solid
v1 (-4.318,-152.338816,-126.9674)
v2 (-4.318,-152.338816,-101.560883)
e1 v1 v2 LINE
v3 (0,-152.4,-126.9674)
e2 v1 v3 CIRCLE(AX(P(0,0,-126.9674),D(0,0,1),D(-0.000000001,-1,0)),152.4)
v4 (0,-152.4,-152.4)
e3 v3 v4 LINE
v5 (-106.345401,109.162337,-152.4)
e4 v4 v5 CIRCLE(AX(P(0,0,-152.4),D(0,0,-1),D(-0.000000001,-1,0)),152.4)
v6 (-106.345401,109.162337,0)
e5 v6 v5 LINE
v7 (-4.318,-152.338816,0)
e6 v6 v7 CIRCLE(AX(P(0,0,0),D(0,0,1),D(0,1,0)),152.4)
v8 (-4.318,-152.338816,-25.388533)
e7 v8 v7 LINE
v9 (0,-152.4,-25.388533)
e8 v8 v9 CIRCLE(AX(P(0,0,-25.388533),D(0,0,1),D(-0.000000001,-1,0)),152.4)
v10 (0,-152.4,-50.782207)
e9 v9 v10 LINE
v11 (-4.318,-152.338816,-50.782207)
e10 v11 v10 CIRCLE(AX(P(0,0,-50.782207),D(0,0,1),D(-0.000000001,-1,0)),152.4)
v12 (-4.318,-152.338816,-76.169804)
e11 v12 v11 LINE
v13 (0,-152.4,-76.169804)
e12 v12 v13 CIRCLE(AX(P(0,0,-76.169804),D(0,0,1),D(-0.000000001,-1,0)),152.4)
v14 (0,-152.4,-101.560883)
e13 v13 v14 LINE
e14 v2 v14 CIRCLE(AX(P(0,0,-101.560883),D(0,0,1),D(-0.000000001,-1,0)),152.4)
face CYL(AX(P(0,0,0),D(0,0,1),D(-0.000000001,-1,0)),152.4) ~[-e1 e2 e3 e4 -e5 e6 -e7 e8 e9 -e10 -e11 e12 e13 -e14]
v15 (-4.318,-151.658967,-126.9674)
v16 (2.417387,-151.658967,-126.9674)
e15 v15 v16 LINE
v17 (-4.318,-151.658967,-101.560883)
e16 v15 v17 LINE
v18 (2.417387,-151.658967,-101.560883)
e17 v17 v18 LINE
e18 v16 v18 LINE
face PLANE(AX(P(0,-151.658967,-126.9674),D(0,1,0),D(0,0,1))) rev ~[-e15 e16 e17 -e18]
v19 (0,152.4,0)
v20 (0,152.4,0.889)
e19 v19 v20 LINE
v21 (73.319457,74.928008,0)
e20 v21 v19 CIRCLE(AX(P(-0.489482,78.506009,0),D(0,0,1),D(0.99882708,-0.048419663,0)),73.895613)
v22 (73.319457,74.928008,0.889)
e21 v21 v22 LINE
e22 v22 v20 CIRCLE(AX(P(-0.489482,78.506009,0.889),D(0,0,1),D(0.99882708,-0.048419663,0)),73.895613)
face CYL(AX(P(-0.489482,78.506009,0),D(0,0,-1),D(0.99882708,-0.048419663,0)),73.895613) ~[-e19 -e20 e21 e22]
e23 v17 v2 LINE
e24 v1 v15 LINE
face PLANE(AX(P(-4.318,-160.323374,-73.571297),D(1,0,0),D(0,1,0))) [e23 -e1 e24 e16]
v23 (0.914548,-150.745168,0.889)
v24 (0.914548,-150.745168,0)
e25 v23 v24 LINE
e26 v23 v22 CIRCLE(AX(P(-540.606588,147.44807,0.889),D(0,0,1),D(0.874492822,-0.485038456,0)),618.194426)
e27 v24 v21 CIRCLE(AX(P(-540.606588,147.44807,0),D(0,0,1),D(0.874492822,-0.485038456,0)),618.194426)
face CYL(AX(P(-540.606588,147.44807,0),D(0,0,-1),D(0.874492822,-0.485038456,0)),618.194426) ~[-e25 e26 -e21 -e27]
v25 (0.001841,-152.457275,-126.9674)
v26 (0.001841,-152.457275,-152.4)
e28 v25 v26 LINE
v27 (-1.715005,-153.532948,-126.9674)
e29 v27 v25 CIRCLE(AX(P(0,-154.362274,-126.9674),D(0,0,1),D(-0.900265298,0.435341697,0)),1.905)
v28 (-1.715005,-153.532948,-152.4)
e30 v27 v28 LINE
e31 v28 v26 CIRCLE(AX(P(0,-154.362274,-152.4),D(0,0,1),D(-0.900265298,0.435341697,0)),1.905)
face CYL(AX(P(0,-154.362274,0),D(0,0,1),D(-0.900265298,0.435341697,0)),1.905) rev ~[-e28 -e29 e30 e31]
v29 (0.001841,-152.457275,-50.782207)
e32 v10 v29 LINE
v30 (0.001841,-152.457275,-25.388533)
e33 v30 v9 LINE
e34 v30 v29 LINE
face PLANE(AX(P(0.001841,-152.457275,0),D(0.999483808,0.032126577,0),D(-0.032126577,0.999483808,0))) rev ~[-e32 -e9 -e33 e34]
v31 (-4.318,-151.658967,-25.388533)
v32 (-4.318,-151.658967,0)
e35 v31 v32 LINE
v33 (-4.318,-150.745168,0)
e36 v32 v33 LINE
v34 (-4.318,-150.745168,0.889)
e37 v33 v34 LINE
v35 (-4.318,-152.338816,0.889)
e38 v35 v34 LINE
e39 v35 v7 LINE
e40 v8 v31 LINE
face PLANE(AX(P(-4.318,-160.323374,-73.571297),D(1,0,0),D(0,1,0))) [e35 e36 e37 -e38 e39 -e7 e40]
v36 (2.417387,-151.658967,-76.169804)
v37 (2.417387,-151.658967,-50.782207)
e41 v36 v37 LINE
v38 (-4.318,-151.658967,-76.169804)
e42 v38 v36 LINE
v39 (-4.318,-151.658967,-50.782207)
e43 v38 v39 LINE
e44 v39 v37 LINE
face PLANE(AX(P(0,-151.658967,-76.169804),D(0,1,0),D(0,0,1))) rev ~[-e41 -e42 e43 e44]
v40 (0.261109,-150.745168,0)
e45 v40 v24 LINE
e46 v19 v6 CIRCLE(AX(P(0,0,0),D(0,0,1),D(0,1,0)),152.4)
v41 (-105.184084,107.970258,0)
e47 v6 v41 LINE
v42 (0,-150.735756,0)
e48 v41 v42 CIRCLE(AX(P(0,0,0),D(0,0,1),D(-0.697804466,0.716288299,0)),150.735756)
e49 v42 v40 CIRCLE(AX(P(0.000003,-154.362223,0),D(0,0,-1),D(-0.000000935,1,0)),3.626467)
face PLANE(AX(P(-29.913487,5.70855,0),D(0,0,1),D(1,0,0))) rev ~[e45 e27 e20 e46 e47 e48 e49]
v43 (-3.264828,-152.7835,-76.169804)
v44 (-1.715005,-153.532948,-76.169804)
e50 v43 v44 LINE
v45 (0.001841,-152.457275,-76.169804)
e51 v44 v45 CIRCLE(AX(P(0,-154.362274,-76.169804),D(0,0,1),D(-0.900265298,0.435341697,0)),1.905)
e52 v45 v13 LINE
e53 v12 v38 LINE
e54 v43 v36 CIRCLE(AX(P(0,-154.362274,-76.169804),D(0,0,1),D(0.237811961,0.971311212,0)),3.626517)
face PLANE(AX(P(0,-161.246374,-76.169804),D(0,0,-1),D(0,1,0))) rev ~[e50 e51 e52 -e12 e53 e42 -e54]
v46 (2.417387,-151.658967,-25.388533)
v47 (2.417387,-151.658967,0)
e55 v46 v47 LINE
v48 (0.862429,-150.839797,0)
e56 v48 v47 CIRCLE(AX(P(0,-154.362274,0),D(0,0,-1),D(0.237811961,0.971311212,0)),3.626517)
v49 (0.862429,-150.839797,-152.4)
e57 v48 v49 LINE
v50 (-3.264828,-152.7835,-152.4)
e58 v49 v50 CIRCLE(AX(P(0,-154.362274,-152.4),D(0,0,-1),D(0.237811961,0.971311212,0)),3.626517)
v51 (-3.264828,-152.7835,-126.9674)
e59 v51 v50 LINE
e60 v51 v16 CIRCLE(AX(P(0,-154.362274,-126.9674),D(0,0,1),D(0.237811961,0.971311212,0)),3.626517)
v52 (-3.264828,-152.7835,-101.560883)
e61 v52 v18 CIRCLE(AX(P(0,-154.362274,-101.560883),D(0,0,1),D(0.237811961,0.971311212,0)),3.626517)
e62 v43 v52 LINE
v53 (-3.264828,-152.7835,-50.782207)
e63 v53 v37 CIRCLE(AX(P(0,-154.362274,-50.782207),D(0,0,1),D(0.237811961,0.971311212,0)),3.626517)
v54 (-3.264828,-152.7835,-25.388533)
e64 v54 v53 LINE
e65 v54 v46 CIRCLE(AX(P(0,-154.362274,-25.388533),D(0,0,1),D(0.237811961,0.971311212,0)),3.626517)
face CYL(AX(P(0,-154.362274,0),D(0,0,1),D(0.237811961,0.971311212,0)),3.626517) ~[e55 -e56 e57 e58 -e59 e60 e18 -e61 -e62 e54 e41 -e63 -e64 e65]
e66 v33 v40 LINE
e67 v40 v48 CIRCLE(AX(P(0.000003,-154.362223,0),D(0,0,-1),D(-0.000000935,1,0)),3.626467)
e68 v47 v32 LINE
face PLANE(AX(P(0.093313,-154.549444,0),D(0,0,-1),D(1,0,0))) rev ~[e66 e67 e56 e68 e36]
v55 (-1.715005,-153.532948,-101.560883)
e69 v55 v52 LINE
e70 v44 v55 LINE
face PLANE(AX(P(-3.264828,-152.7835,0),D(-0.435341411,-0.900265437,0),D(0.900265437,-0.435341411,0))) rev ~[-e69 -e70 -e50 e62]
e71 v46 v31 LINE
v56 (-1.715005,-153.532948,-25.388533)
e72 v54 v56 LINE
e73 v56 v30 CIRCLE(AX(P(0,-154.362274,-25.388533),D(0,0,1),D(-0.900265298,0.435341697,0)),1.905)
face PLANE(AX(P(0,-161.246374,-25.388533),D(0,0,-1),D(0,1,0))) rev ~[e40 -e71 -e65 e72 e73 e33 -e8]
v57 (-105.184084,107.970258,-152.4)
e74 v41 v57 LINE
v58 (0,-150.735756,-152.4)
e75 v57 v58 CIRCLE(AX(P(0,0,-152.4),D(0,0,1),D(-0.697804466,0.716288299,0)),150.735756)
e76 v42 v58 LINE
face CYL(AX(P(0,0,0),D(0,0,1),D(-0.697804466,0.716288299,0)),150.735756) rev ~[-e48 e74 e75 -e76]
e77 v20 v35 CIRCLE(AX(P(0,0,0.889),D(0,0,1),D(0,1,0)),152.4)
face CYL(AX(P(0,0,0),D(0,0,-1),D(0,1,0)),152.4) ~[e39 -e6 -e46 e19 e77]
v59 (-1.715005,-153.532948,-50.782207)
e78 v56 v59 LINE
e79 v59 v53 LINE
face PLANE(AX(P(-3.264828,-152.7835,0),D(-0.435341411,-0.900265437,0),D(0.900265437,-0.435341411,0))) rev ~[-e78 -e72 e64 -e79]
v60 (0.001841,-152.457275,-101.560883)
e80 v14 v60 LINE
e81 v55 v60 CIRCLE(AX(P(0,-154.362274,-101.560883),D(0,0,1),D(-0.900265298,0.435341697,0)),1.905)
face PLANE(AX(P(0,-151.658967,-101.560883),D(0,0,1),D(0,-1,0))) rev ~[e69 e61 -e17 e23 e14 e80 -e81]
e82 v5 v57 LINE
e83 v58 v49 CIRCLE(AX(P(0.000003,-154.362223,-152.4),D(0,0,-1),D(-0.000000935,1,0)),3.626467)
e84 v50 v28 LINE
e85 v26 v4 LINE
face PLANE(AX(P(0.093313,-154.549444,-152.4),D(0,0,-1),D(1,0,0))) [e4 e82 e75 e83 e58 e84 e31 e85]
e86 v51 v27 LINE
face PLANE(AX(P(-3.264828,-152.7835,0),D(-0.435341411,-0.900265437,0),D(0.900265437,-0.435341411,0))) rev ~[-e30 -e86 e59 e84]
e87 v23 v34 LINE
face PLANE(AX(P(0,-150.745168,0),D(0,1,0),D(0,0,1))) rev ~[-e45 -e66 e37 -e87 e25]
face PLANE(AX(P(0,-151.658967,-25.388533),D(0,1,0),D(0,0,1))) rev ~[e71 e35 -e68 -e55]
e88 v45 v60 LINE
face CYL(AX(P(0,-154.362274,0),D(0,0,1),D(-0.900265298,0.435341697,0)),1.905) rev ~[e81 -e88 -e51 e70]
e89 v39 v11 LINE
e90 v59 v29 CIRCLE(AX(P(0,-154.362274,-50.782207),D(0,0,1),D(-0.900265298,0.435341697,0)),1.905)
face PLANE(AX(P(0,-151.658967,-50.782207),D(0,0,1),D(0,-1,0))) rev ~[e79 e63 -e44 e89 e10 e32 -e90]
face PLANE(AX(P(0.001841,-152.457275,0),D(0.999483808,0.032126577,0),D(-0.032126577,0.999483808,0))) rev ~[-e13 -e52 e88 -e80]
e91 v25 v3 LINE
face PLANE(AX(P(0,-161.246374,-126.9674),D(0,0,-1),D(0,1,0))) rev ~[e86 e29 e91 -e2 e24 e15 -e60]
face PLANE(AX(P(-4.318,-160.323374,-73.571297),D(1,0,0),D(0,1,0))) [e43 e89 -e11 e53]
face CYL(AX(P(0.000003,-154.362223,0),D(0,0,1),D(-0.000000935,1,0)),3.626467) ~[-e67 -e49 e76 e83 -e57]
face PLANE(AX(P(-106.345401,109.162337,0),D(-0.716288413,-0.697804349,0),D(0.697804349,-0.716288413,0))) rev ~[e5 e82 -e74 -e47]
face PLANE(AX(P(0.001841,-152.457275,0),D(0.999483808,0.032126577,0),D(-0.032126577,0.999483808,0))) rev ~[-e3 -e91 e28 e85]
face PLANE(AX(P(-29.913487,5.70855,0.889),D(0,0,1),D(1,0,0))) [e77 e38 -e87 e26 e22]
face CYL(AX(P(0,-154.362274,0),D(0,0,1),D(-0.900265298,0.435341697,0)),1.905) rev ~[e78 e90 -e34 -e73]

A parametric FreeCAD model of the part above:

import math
import FreeCAD as App
import Part
import Sketcher
from FreeCAD import Vector
Q = App.Units.Quantity

doc = App.newDocument("Part")
body = doc.addObject("PartDesign::Body", "Body")

sketch1 = body.newObject("Sketcher::SketchObject", "Sketch")
sketch1.AttachmentSupport = (doc.getObject("XY_Plane"), [""])
sketch1.MapMode = "FlatFace"
sketch1.addGeometry([
    Part.ArcOfCircle(Part.Circle(Vector(0, 79, 0), Vector(0, 0, 1), 74), math.radians(-3), math.radians(90)),
    Part.ArcOfCircle(Part.Circle(Vector(0, 0, 0), Vector(0, 0, 1), 152), math.radians(90), math.radians(270)),
    Part.ArcOfCircle(Part.Circle(Vector(-541, 147, 0), Vector(0, 0, 1), 618), math.radians(-29), math.radians(-7)),
], False)
sketch1.addConstraint([
    Sketcher.Constraint("Coincident", 0, 2, 1, 1),
    Sketcher.Constraint("Coincident", 1, 2, 2, 1),
    Sketcher.Constraint("Coincident", 2, 2, 0, 1),
    Sketcher.Constraint("Coincident", 1, 3, -1, 1),
    Sketcher.Constraint("PointOnObject", 0, 2, -2),
    Sketcher.Constraint("PointOnObject", 1, 2, -2),
    Sketcher.Constraint("Radius", 1, Q("6 in")),
    Sketcher.Constraint("Radius", 0, Q("73.895613 mm")),
    Sketcher.Constraint("Radius", 2, Q("618.194426 mm")),
    Sketcher.Constraint("DistanceY", 2, 2, 0, 3, Q("3.578001 mm")),
    Sketcher.Constraint("DistanceX", 0, 3, -1, 1, Q("0.489482 mm")),
])
pad1 = body.newObject("PartDesign::Pad", "Pad")
pad1.Profile = sketch1
pad1.Length = Q("0.035 in")

sketch2 = body.newObject("Sketcher::SketchObject", "Sketch001")
sketch2.AttachmentSupport = (doc.getObject("XY_Plane"), [""])
sketch2.MapMode = "FlatFace"
sketch2.addGeometry([
    Part.LineSegment(Vector(0, -152.46, 0), Vector(0, -152.4, 0)),
    Part.ArcOfCircle(Part.Circle(Vector(0, 0, 0), Vector(0, 0, 1), 152.4), math.radians(134), math.radians(270)),
    Part.LineSegment(Vector(-106.35, 109.16, 0), Vector(-105.18, 107.97, 0)),
    Part.ArcOfCircle(Part.Circle(Vector(0, 0, 0), Vector(0, 0, 1), 150.74), math.radians(134), math.radians(270)),
    Part.ArcOfCircle(Part.Circle(Vector(0, -154.36, 0), Vector(0, 0, 1), 3.63), math.radians(76.24), math.radians(90)),
    Part.ArcOfCircle(Part.Circle(Vector(0, -154.36, 0), Vector(0, 0, 1), 3.63), math.radians(154), math.radians(436)),
    Part.LineSegment(Vector(-3.26, -152.78, 0), Vector(-1.72, -153.53, 0)),
    Part.ArcOfCircle(Part.Circle(Vector(0, -154.36, 0), Vector(0, 0, 1), 1.9), math.radians(154), math.radians(450)),
], False)
sketch2.addConstraint([
    Sketcher.Constraint("Coincident", 0, 2, 1, 2),
    Sketcher.Constraint("Coincident", 1, 1, 2, 1),
    Sketcher.Constraint("Coincident", 2, 2, 3, 1),
    Sketcher.Constraint("Tangent", 3, 2, 4, 2),
    Sketcher.Constraint("Coincident", 4, 1, 5, 2),
    Sketcher.Constraint("Coincident", 5, 1, 6, 1),
    Sketcher.Constraint("Coincident", 6, 2, 7, 1),
    Sketcher.Constraint("Coincident", 7, 2, 0, 1),
    Sketcher.Constraint("Coincident", 1, 3, -1, 1),
    Sketcher.Constraint("Coincident", 3, 3, -1, 1),
    Sketcher.Constraint("Coincident", 7, 3, 5, 3),
    Sketcher.Constraint("PointOnObject", 5, 3, -2),
    Sketcher.Constraint("PointOnObject", 0, 2, -2),
    Sketcher.Constraint("PointOnObject", 3, 2, -2),
    Sketcher.Constraint("Radius", 1, Q("6 in")),
    Sketcher.Constraint("Radius", 7, Q("0.075 in")),
    Sketcher.Constraint("Radius", 3, Q("150.735756 mm")),
    Sketcher.Constraint("Radius", 4, Q("3.626467 mm")),
    Sketcher.Constraint("Radius", 5, Q("3.626517 mm")),
    Sketcher.Constraint("DistanceX", 1, 1, -1, 1, Q("106.345401 mm")),
    Sketcher.Constraint("DistanceY", 5, 1, -1, 1, Q("152.7835 mm")),
    Sketcher.Constraint("DistanceY", -1, 1, 2, 2, Q("107.970258 mm")),
    Sketcher.Constraint("DistanceX", -1, 1, 4, 1, Q("0.862429 mm")),
    Sketcher.Constraint("DistanceY", 6, 2, -1, 1, Q("153.532948 mm")),
    Sketcher.Constraint("DistanceX", -1, 1, 7, 2, Q("0.001841 mm")),
])
pad2 = body.newObject("PartDesign::Pad", "Pad001")
pad2.Profile = sketch2
pad2.Length = Q("6 in")
pad2.Reversed = True

sketch3 = body.newObject("Sketcher::SketchObject", "Sketch002")
sketch3.AttachmentSupport = (doc.getObject("YZ_Plane"), [""])
sketch3.MapMode = "FlatFace"
sketch3.addGeometry([
    Part.LineSegment(Vector(-151.7, 0, 0), Vector(-150.7, 0, 0)),
    Part.LineSegment(Vector(-150.7, 0, 0), Vector(-150.7, 1.2, 0)),
    Part.LineSegment(Vector(-150.7, 1.2, 0), Vector(-161.2, 1.2, 0)),
    Part.LineSegment(Vector(-161.2, 1.2, 0), Vector(-161.2, 0, 0)),
    Part.LineSegment(Vector(-161.2, 0, 0), Vector(-165.6, 0, 0)),
    Part.LineSegment(Vector(-165.6, 0, 0), Vector(-165.6, -152.9, 0)),
    Part.LineSegment(Vector(-165.6, -152.9, 0), Vector(-161.2, -152.9, 0)),
    Part.LineSegment(Vector(-161.2, -152.9, 0), Vector(-161.2, -127, 0)),
    Part.LineSegment(Vector(-161.2, -127, 0), Vector(-151.7, -127, 0)),
    Part.LineSegment(Vector(-151.7, -127, 0), Vector(-151.7, -101.6, 0)),
    Part.LineSegment(Vector(-151.7, -101.6, 0), Vector(-161.2, -101.6, 0)),
    Part.LineSegment(Vector(-161.2, -101.6, 0), Vector(-161.2, -76.2, 0)),
    Part.LineSegment(Vector(-161.2, -76.2, 0), Vector(-151.7, -76.2, 0)),
    Part.LineSegment(Vector(-151.7, -76.2, 0), Vector(-151.7, -50.8, 0)),
    Part.LineSegment(Vector(-151.7, -50.8, 0), Vector(-161.2, -50.8, 0)),
    Part.LineSegment(Vector(-161.2, -50.8, 0), Vector(-161.2, -25.4, 0)),
    Part.LineSegment(Vector(-161.2, -25.4, 0), Vector(-151.7, -25.4, 0)),
    Part.LineSegment(Vector(-151.7, -25.4, 0), Vector(-151.7, 0, 0)),
], False)
sketch3.addConstraint([
    Sketcher.Constraint("Coincident", 0, 2, 1, 1),
    Sketcher.Constraint("Coincident", 1, 2, 2, 1),
    Sketcher.Constraint("Coincident", 2, 2, 3, 1),
    Sketcher.Constraint("Coincident", 3, 2, 4, 1),
    Sketcher.Constraint("Coincident", 4, 2, 5, 1),
    Sketcher.Constraint("Coincident", 5, 2, 6, 1),
    Sketcher.Constraint("Coincident", 6, 2, 7, 1),
    Sketcher.Constraint("Coincident", 7, 2, 8, 1),
    Sketcher.Constraint("Coincident", 8, 2, 9, 1),
    Sketcher.Constraint("Coincident", 9, 2, 10, 1),
    Sketcher.Constraint("Coincident", 10, 2, 11, 1),
    Sketcher.Constraint("Coincident", 11, 2, 12, 1),
    Sketcher.Constraint("Coincident", 12, 2, 13, 1),
    Sketcher.Constraint("Coincident", 13, 2, 14, 1),
    Sketcher.Constraint("Coincident", 14, 2, 15, 1),
    Sketcher.Constraint("Coincident", 15, 2, 16, 1),
    Sketcher.Constraint("Coincident", 16, 2, 17, 1),
    Sketcher.Constraint("Coincident", 17, 2, 0, 1),
    Sketcher.Constraint("Horizontal", 0),
    Sketcher.Constraint("Vertical", 1),
    Sketcher.Constraint("Horizontal", 2),
    Sketcher.Constraint("Vertical", 3),
    Sketcher.Constraint("Horizontal", 4),
    Sketcher.Constraint("Vertical", 5),
    Sketcher.Constraint("Horizontal", 6),
    Sketcher.Constraint("Vertical", 7),
    Sketcher.Constraint("Horizontal", 8),
    Sketcher.Constraint("Vertical", 9),
    Sketcher.Constraint("Horizontal", 10),
    Sketcher.Constraint("Vertical", 11),
    Sketcher.Constraint("Horizontal", 12),
    Sketcher.Constraint("Vertical", 13),
    Sketcher.Constraint("Horizontal", 14),
    Sketcher.Constraint("Vertical", 15),
    Sketcher.Constraint("Horizontal", 16),
    Sketcher.Constraint("Vertical", 17),
    Sketcher.Constraint("PointOnObject", 0, 2, -1),
    Sketcher.Constraint("PointOnObject", 3, 2, -1),
    Sketcher.Constraint("Vertical", 3, 2, 6, 2),
    Sketcher.Constraint("Vertical", 7, 2, 10, 2),
    Sketcher.Constraint("Vertical", 9, 2, 12, 2),
    Sketcher.Constraint("Vertical", 11, 2, 14, 2),
    Sketcher.Constraint("Vertical", 13, 2, 16, 2),
    Sketcher.Constraint("DistanceX", 0, 1, 0, 2, Q("0.913799 mm")),
    Sketcher.Constraint("DistanceX", 4, 2, 4, 1, Q("4.385099 mm")),
    Sketcher.Constraint("DistanceY", 11, 1, 11, 2, Q("25.391079 mm")),
    Sketcher.Constraint("DistanceY", 7, 2, -1, 1, Q("126.9674 mm")),
    Sketcher.Constraint("DistanceX", 2, 2, 2, 1, Q("10.501206 mm")),
    Sketcher.Constraint("DistanceY", 1, 1, 1, 2, Q("1.181528 mm")),
    Sketcher.Constraint("DistanceY", 5, 2, 5, 1, Q("152.882606 mm")),
    Sketcher.Constraint("DistanceY", 9, 1, 9, 2, Q("25.406517 mm")),
    Sketcher.Constraint("DistanceY", 13, 1, 13, 2, Q("25.387597 mm")),
    Sketcher.Constraint("DistanceY", 15, 1, 15, 2, Q("25.393674 mm")),
    Sketcher.Constraint("DistanceX", 0, 2, -1, 1, Q("150.745168 mm")),
])
pocket1 = body.newObject("PartDesign::Pocket", "Pocket")
pocket1.Profile = sketch3
pocket1.Length = Q("0.34 in")
pocket1.Midplane = True

doc.recompute()
